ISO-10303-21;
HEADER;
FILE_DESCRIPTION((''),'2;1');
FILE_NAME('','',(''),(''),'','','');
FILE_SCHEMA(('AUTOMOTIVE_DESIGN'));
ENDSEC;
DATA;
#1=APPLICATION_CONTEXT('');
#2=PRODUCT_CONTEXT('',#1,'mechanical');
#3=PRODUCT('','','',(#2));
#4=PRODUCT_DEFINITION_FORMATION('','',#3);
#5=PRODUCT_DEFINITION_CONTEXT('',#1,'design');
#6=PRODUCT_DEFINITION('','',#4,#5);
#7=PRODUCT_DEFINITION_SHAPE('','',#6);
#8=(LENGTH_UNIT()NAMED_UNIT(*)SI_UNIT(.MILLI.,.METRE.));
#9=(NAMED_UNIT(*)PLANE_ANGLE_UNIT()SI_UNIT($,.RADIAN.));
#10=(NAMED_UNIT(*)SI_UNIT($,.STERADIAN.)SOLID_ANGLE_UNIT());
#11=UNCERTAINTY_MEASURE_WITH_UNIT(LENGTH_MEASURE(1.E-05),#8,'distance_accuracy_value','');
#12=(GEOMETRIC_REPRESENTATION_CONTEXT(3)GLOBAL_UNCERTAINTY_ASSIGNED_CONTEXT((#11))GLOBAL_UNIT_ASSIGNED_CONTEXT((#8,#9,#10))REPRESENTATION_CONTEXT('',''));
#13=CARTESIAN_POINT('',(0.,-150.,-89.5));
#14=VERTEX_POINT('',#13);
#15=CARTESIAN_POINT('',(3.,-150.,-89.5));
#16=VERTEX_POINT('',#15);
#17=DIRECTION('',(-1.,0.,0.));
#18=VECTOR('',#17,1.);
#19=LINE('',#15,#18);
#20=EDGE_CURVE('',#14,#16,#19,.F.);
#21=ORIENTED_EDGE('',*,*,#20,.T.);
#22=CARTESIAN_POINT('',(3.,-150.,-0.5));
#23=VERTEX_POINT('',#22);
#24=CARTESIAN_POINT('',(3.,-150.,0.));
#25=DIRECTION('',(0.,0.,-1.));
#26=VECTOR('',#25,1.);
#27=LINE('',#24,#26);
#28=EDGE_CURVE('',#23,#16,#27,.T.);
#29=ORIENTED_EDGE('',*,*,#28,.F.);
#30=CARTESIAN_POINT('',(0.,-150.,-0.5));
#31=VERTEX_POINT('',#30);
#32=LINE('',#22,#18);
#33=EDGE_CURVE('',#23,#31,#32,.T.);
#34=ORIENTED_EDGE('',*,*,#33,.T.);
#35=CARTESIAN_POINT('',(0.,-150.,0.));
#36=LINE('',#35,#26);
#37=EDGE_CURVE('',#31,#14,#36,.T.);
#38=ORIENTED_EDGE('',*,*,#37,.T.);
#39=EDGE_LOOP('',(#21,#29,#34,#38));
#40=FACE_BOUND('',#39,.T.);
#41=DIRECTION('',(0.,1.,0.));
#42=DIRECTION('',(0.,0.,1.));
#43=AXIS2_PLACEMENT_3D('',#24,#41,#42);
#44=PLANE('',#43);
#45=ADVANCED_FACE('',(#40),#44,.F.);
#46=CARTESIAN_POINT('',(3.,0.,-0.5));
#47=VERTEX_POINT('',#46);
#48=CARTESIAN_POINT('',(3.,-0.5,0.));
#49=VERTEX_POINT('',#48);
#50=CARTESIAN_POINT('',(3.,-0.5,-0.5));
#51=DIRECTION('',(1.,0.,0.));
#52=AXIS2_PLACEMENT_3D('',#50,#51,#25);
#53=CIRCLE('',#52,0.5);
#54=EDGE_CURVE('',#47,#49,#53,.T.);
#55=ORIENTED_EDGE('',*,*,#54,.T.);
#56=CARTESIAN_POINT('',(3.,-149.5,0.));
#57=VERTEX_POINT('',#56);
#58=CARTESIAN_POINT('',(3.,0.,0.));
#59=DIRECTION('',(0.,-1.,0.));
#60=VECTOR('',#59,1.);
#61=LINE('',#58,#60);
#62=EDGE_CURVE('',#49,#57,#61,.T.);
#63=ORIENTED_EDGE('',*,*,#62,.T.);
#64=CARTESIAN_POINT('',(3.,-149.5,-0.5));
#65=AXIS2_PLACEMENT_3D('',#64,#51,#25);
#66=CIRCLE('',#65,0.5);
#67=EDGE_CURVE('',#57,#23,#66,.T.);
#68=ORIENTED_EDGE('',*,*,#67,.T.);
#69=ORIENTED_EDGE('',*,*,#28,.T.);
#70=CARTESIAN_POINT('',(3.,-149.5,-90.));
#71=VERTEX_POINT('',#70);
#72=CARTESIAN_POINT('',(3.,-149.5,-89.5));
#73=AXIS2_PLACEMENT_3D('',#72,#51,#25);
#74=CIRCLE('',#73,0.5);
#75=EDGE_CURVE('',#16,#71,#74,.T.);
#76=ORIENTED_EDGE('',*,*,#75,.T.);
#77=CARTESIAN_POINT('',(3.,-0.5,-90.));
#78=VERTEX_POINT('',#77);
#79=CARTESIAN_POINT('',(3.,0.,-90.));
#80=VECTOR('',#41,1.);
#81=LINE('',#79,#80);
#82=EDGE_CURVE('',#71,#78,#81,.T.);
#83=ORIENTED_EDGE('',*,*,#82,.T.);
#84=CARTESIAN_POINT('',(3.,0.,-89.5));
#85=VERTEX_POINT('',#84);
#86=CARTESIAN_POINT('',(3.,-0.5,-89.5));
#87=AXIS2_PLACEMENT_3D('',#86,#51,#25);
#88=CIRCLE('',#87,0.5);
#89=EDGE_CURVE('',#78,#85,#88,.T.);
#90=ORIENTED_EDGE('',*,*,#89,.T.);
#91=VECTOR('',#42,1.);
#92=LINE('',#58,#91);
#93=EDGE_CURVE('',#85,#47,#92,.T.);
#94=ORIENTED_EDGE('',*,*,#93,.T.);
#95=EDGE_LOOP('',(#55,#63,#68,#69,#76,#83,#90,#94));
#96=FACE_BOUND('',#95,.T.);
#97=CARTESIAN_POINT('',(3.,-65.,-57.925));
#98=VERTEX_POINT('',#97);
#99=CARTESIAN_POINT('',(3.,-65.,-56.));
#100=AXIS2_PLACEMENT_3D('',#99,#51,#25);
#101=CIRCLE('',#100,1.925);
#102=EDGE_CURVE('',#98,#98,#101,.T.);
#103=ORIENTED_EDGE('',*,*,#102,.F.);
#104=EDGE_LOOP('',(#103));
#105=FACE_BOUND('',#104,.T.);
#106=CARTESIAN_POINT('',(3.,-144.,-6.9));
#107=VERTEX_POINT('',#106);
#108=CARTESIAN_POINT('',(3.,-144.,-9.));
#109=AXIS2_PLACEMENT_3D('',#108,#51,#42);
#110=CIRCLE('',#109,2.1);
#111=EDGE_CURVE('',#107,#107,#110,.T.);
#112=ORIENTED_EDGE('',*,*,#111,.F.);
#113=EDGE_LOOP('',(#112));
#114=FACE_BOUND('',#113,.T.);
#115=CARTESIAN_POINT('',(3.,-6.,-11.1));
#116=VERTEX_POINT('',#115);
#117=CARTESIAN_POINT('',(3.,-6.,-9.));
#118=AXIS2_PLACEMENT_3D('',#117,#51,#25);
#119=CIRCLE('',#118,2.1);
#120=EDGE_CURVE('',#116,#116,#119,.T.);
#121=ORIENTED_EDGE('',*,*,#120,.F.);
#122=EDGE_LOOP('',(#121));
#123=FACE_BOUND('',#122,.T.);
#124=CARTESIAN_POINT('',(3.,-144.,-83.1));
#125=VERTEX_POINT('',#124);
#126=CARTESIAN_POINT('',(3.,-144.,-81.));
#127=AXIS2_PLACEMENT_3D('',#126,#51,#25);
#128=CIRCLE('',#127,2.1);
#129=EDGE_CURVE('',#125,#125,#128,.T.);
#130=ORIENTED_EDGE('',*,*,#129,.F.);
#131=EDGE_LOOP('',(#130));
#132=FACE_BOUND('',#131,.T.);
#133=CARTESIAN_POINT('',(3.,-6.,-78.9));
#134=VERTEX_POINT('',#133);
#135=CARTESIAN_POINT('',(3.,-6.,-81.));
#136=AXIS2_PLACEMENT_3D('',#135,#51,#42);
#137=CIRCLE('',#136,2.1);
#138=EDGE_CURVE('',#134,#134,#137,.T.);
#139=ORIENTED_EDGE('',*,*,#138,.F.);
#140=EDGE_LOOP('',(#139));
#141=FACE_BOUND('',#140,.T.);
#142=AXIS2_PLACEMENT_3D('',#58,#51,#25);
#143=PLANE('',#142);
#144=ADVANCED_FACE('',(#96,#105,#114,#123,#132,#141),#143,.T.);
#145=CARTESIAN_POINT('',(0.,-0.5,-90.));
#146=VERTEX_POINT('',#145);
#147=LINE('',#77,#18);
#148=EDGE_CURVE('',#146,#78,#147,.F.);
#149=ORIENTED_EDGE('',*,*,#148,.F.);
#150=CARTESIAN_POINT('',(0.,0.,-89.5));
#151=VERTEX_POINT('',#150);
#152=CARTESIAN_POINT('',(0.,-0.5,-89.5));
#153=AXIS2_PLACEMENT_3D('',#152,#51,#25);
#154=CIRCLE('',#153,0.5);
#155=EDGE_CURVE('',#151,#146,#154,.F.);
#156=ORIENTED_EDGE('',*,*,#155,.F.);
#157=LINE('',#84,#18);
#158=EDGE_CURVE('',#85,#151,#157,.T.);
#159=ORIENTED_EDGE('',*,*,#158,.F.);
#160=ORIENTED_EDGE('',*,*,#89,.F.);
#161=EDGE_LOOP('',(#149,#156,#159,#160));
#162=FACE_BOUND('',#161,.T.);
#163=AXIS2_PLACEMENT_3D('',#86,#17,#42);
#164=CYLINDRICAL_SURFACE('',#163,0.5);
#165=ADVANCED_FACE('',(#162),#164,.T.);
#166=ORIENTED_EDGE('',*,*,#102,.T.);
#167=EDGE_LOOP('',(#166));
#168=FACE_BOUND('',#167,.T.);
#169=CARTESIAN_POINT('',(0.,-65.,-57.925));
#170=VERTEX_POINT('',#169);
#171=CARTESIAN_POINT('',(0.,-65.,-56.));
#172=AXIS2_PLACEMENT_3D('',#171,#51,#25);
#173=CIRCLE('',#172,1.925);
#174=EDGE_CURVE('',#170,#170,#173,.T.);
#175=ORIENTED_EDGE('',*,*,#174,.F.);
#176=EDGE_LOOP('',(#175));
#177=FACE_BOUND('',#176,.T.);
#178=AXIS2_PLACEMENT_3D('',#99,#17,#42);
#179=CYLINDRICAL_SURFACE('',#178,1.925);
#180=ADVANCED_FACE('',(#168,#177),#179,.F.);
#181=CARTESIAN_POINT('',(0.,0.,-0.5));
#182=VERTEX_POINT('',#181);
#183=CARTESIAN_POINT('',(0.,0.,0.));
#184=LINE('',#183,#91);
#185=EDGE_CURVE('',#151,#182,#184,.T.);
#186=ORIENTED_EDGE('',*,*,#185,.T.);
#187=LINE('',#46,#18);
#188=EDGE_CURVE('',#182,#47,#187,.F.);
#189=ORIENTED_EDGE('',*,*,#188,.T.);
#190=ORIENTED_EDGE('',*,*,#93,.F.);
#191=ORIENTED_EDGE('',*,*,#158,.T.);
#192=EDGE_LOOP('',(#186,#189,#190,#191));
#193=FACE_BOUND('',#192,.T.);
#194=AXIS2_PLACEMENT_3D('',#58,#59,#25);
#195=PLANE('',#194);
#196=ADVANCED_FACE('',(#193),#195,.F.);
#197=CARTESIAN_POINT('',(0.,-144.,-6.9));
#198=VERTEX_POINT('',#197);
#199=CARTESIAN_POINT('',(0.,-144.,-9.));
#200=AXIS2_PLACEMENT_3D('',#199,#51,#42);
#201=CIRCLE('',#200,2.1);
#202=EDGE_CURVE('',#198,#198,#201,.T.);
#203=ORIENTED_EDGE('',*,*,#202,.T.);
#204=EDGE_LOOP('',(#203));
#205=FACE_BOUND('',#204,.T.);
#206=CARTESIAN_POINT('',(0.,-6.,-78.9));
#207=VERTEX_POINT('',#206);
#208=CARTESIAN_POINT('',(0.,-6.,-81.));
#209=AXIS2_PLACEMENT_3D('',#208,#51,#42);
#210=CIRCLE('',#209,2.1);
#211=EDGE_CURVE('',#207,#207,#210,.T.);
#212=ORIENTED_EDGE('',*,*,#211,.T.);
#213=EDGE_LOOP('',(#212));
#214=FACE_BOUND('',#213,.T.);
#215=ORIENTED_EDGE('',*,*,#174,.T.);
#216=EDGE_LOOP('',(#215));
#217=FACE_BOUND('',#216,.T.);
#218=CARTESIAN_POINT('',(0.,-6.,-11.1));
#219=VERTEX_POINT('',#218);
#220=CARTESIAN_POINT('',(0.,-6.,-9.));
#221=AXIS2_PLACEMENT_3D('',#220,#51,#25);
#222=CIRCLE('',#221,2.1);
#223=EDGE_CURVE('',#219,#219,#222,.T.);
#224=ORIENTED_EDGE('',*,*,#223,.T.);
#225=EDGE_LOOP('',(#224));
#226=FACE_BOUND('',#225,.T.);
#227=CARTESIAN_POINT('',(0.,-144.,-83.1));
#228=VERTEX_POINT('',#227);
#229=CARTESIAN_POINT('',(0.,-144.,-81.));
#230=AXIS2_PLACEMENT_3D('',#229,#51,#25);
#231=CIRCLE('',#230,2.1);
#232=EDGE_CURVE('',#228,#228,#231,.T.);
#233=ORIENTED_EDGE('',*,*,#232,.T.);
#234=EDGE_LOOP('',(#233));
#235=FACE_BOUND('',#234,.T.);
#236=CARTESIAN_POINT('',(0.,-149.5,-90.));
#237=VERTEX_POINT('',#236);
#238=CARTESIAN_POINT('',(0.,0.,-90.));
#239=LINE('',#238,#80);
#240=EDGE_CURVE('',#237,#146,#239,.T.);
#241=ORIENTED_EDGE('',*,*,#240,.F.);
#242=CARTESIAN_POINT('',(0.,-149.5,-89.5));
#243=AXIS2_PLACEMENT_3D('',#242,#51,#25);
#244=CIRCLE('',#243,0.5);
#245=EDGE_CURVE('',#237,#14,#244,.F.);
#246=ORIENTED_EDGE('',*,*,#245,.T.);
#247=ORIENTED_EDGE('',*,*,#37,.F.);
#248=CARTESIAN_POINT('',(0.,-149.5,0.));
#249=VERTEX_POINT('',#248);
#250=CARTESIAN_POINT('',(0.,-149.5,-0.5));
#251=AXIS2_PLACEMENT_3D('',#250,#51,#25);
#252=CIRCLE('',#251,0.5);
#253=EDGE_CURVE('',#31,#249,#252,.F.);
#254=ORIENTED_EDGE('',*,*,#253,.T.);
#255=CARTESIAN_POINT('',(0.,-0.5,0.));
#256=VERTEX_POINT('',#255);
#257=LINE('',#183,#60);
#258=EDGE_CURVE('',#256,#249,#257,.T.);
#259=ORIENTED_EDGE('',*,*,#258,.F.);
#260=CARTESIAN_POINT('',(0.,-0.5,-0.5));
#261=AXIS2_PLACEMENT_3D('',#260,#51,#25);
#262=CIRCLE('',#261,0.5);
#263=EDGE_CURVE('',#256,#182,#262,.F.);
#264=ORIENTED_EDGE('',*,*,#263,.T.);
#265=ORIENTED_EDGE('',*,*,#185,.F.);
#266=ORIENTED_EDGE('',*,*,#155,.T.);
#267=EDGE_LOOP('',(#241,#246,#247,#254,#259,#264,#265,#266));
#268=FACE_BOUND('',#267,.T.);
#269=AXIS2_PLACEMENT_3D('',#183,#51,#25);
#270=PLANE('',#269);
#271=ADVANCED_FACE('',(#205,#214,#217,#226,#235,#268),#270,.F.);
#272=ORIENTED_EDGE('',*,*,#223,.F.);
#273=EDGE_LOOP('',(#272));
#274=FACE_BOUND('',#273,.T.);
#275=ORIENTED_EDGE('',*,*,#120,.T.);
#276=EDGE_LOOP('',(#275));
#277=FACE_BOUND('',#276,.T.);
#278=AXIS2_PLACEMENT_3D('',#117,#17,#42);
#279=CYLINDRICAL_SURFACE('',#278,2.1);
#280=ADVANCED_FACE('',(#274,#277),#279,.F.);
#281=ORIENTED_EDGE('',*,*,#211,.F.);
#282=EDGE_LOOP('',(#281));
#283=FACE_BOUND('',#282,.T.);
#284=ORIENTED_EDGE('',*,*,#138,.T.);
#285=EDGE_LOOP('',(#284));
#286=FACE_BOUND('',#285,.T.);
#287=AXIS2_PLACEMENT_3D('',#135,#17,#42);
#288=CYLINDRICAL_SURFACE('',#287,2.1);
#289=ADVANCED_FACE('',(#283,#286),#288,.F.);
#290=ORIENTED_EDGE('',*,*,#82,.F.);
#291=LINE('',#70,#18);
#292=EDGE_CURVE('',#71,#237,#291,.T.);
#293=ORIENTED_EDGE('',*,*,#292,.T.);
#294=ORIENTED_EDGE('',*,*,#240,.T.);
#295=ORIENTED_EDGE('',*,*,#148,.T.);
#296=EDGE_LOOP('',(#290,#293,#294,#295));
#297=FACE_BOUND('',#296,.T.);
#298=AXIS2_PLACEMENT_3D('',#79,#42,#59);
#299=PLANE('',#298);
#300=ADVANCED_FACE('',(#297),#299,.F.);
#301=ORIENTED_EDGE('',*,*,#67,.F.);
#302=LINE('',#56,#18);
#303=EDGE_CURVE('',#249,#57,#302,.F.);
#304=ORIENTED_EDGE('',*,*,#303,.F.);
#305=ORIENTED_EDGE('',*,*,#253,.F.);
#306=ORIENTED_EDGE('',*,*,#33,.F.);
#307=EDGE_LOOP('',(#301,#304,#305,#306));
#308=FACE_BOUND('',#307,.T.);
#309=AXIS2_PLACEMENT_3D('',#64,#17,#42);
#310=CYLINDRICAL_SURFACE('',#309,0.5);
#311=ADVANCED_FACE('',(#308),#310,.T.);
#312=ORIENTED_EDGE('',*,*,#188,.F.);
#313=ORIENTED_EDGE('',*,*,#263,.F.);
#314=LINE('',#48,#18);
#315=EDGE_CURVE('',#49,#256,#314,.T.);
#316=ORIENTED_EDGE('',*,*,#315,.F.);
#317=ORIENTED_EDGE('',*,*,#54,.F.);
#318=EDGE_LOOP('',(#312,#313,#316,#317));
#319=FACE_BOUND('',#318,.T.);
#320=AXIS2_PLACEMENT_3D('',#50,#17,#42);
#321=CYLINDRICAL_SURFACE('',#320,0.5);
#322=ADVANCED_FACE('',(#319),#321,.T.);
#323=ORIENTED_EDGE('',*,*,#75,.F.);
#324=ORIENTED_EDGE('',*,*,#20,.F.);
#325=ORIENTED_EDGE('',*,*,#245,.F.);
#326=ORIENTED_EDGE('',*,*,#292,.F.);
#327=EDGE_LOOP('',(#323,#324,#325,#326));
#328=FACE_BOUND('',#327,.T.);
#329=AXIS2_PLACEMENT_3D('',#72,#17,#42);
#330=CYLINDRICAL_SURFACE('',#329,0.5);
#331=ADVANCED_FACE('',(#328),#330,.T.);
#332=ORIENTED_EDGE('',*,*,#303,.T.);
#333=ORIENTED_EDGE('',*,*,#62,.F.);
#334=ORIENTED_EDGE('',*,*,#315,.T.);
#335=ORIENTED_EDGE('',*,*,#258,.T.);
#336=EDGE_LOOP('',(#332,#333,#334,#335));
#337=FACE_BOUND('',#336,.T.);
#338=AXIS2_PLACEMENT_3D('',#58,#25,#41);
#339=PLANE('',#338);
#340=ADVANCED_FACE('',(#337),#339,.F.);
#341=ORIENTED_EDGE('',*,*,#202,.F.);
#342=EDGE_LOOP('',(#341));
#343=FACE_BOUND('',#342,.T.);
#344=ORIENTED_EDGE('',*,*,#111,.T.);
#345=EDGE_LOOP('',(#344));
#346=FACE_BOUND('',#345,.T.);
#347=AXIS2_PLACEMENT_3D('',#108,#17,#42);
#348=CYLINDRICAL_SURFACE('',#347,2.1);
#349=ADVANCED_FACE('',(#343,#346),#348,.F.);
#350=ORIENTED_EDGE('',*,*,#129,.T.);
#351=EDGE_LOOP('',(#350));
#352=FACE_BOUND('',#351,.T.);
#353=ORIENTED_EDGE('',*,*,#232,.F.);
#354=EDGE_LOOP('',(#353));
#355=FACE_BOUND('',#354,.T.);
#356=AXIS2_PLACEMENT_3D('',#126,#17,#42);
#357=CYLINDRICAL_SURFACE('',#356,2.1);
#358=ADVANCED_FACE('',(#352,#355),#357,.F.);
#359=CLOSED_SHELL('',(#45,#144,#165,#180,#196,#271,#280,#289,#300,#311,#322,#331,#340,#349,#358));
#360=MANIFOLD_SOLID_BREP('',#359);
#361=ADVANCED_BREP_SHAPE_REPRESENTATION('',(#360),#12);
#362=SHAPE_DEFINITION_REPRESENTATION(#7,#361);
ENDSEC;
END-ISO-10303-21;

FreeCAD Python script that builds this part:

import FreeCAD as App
import Part
import Sketcher
Q = App.Units.Quantity


def edges_at(feature, points):
    """Names of the edges that pass closest to the given points."""
    edges = feature.Shape.Edges
    near = lambda p: min(range(len(edges)), key=lambda i: edges[i].distToShape(Part.Vertex(*p))[0])
    return sorted({f"Edge{near(p) + 1}" for p in points})

doc = App.newDocument("Part")
body = doc.addObject("PartDesign::Body", "Body")

sketch1 = body.newObject("Sketcher::SketchObject", "Sketch")
sketch1.AttachmentSupport = (doc.getObject("YZ_Plane"), [""])
sketch1.MapMode = "FlatFace"
sketch1.addGeometry([
    Part.LineSegment(App.Vector(0, 0, 0), App.Vector(-150, 0, 0)),
    Part.LineSegment(App.Vector(-150, 0, 0), App.Vector(-150, -90, 0)),
    Part.LineSegment(App.Vector(-150, -90, 0), App.Vector(0, -90, 0)),
    Part.LineSegment(App.Vector(0, -90, 0), App.Vector(0, 0, 0)),
    Part.Circle(App.Vector(-144, -9, 0), App.Vector(0, 0, 1), 2.1),
    Part.Circle(App.Vector(-144, -81, 0), App.Vector(0, 0, 1), 2.1),
    Part.Circle(App.Vector(-6, -9, 0), App.Vector(0, 0, 1), 2.1),
    Part.Circle(App.Vector(-65, -56, 0), App.Vector(0, 0, 1), 1.9),
    Part.Circle(App.Vector(-6, -81, 0), App.Vector(0, 0, 1), 2.1),
], False)
sketch1.addConstraint([
    Sketcher.Constraint("Coincident", 0, 2, 1, 1),
    Sketcher.Constraint("Coincident", 1, 2, 2, 1),
    Sketcher.Constraint("Coincident", 2, 2, 3, 1),
    Sketcher.Constraint("Coincident", 3, 2, 0, 1),
    Sketcher.Constraint("Horizontal", 0),
    Sketcher.Constraint("Vertical", 1),
    Sketcher.Constraint("Horizontal", 2),
    Sketcher.Constraint("Vertical", 3),
    Sketcher.Constraint("Coincident", 3, 2, -1, 1),
    Sketcher.Constraint("Equal", 4, 5),
    Sketcher.Constraint("Equal", 5, 6),
    Sketcher.Constraint("Equal", 6, 8),
    Sketcher.Constraint("Horizontal", 4, 3, 6, 3),
    Sketcher.Constraint("Horizontal", 5, 3, 8, 3),
    Sketcher.Constraint("Vertical", 4, 3, 5, 3),
    Sketcher.Constraint("Vertical", 6, 3, 8, 3),
    Sketcher.Constraint("Diameter", 4, Q("4.2 mm")),
    Sketcher.Constraint("Diameter", 7, Q("3.85 mm")),
    Sketcher.Constraint("DistanceX", 0, 2, 0, 1, Q("150 mm")),
    Sketcher.Constraint("DistanceY", 1, 2, 1, 1, Q("90 mm")),
    Sketcher.Constraint("DistanceX", 4, 3, -1, 1, Q("144 mm")),
    Sketcher.Constraint("DistanceY", 4, 3, -1, 1, Q("9 mm")),
    Sketcher.Constraint("DistanceY", 5, 3, -1, 1, Q("81 mm")),
    Sketcher.Constraint("DistanceX", 6, 3, -1, 1, Q("6 mm")),
    Sketcher.Constraint("DistanceX", 7, 3, -1, 1, Q("65 mm")),
    Sketcher.Constraint("DistanceY", 7, 3, -1, 1, Q("56 mm")),
])
pad1 = body.newObject("PartDesign::Pad", "Pad")
pad1.Profile = sketch1
pad1.Length = 3
doc.recompute()

fillet = body.newObject("PartDesign::Fillet", "Fillet")
fillet.Base = (pad1, edges_at(pad1, [
    (1.5, 0, 0),
    (1.5, 0, -90),
    (1.5, -150, -90),
    (1.5, -150, 0),
]))
fillet.Radius = 0.5

doc.recompute()
